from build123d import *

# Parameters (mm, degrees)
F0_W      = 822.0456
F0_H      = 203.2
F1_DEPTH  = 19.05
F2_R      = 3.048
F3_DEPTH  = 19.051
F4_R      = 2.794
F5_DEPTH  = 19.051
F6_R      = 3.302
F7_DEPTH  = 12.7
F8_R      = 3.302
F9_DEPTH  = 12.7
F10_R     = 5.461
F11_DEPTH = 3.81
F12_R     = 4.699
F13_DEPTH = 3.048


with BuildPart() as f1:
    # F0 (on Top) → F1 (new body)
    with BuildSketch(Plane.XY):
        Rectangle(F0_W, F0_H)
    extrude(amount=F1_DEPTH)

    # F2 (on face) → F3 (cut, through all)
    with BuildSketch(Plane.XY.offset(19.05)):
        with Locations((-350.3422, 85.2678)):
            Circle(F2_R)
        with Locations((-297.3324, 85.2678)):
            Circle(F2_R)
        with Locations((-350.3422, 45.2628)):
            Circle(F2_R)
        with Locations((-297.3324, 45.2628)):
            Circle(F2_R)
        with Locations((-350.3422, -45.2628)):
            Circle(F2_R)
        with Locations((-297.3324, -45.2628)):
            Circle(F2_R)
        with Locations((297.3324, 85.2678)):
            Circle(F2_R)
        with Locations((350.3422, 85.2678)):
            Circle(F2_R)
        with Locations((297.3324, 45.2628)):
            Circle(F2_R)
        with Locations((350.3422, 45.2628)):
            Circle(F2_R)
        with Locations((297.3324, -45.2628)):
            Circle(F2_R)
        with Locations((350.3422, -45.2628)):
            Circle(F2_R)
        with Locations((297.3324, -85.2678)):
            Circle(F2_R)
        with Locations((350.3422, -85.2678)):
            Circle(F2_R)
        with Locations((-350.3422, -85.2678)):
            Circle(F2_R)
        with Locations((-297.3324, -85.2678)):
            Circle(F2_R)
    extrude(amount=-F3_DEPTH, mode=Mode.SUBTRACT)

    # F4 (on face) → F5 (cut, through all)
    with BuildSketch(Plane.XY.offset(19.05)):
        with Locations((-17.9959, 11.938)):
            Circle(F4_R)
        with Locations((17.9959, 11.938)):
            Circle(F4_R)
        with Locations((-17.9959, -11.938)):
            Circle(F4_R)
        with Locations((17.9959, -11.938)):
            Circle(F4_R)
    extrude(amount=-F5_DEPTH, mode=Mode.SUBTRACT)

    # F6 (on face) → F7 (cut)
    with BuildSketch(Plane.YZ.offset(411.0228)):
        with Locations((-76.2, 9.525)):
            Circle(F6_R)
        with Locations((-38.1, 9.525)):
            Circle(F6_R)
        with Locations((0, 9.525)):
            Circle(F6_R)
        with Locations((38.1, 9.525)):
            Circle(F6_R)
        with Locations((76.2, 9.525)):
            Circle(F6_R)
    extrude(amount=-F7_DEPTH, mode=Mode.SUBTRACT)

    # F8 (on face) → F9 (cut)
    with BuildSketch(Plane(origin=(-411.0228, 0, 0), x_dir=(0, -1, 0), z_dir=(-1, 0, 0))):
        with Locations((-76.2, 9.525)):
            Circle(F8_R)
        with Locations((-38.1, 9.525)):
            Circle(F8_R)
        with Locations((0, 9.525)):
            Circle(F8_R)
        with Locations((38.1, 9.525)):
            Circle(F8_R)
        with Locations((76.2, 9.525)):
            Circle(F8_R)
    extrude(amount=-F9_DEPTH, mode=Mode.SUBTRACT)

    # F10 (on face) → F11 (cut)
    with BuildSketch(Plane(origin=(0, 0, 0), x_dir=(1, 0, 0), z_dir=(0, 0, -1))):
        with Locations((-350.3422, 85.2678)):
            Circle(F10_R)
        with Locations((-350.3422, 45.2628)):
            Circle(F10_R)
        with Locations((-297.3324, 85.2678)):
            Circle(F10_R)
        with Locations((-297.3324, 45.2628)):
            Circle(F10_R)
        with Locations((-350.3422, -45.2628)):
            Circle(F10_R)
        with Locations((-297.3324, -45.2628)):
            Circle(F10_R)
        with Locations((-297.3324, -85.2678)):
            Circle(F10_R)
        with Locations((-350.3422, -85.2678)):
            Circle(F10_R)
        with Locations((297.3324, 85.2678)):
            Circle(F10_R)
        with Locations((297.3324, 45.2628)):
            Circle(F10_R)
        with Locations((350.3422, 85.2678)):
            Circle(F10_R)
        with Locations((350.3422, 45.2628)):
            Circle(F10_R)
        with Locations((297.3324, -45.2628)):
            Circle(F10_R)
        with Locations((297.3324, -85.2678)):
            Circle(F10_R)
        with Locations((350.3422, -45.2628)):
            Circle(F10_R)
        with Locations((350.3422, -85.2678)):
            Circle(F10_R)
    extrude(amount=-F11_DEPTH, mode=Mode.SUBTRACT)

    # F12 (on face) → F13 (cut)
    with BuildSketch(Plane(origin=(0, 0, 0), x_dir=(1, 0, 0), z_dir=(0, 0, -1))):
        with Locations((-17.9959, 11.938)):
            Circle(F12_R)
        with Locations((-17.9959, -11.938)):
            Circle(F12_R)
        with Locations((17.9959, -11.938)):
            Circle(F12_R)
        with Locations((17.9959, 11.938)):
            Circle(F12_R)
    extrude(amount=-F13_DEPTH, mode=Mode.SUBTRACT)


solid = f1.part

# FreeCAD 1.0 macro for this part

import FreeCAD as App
import Part
import Sketcher

V = App.Vector
Q = App.Units.Quantity

doc = App.newDocument("Part")
params = doc.addObject("Spreadsheet::Sheet", "Params")
for row, (alias, value) in enumerate([
    ("sketch1_height", "8 in"),
    ("sketch1_width", "32.364 in"),
    ("pad1_length", "0.75 in"),
    ("sketch2_diameter", "0.24 in"),
    ("sketch3_diameter", "0.22 in"),
    ("sketch4_diameter", "0.26 in"),
    ("pocket3_length", "0.5 in"),
    ("sketch5_diameter", "0.26 in"),
    ("pocket4_length", "0.5 in"),
    ("sketch6_diameter", "0.43 in"),
    ("pocket5_length", "0.15 in"),
    ("sketch7_diameter", "0.37 in"),
    ("pocket6_length", "0.12 in"),
], start=1):
    params.set(f"A{row}", alias)
    params.set(f"B{row}", "=" + value)
    params.setAlias(f"B{row}", alias)

body = doc.addObject("PartDesign::Body", "Body")

# Sketch on XY plane
sketch1 = doc.addObject("Sketcher::SketchObject", "Sketch")
body.addObject(sketch1)
sketch1.AttachmentSupport = (doc.XY_Plane, [""])
sketch1.MapMode = "FlatFace"
sketch1.addGeometry([
    Part.LineSegment(V(-411.0228, 101.6, 0), V(-411.0228, -101.6, 0)),
    Part.LineSegment(V(-411.0228, -101.6, 0), V(411.0228, -101.6, 0)),
    Part.LineSegment(V(411.0228, -101.6, 0), V(411.0228, 101.6, 0)),
    Part.LineSegment(V(411.0228, 101.6, 0), V(-411.0228, 101.6, 0)),
], False)
sketch1.addConstraint([
    Sketcher.Constraint("Coincident", 0, 2, 1, 1),
    Sketcher.Constraint("Coincident", 1, 2, 2, 1),
    Sketcher.Constraint("Coincident", 2, 2, 3, 1),
    Sketcher.Constraint("Coincident", 3, 2, 0, 1),
    Sketcher.Constraint("Vertical", 0),
    Sketcher.Constraint("Horizontal", 1),
    Sketcher.Constraint("Vertical", 2),
    Sketcher.Constraint("Horizontal", 3),
    Sketcher.Constraint("Symmetric", 0, 2, 2, 2, -1, 1),
    Sketcher.Constraint("DistanceY", 0, 2, 0, 1, Q("8 in")),
    Sketcher.Constraint("DistanceX", 1, 1, 1, 2, Q("32.364 in")),
])
sketch1.setExpression("Constraints[9]", "Params.sketch1_height")
sketch1.setExpression("Constraints[10]", "Params.sketch1_width")
pad1 = doc.addObject("PartDesign::Pad", "Pad")
body.addObject(pad1)
pad1.Profile = sketch1
pad1.setExpression("Length", "Params.pad1_length")

# Sketch on XY plane
sketch2 = doc.addObject("Sketcher::SketchObject", "Sketch001")
body.addObject(sketch2)
sketch2.AttachmentSupport = (doc.XY_Plane, [""])
sketch2.MapMode = "FlatFace"
sketch2.AttachmentOffset = App.Placement(V(0, 0, 0.75 * 25.4), App.Rotation())
sketch2.addGeometry([
    Part.Circle(V(-350.3422, 85.2678, 0), V(0, 0, 1), 3.048),  # 0
    Part.Circle(V(-297.3324, 85.2678, 0), V(0, 0, 1), 3.048),  # 1
    Part.Circle(V(-350.3422, 45.2628, 0), V(0, 0, 1), 3.048),  # 2
    Part.Circle(V(-297.3324, 45.2628, 0), V(0, 0, 1), 3.048),  # 3
    Part.Circle(V(-350.3422, -45.2628, 0), V(0, 0, 1), 3.048),  # 4
    Part.Circle(V(-297.3324, -45.2628, 0), V(0, 0, 1), 3.048),  # 5
    Part.Circle(V(297.3324, 85.2678, 0), V(0, 0, 1), 3.048),  # 6
    Part.Circle(V(350.3422, 85.2678, 0), V(0, 0, 1), 3.048),  # 7
    Part.Circle(V(297.3324, 45.2628, 0), V(0, 0, 1), 3.048),  # 8
    Part.Circle(V(350.3422, 45.2628, 0), V(0, 0, 1), 3.048),  # 9
    Part.Circle(V(297.3324, -45.2628, 0), V(0, 0, 1), 3.048),  # 10
    Part.Circle(V(350.3422, -45.2628, 0), V(0, 0, 1), 3.048),  # 11
    Part.Circle(V(297.3324, -85.2678, 0), V(0, 0, 1), 3.048),  # 12
    Part.Circle(V(350.3422, -85.2678, 0), V(0, 0, 1), 3.048),  # 13
    Part.Circle(V(-350.3422, -85.2678, 0), V(0, 0, 1), 3.048),  # 14
    Part.Circle(V(-297.3324, -85.2678, 0), V(0, 0, 1), 3.048),  # 15
], False)
sketch2.addConstraint([
    Sketcher.Constraint("Equal", 0, 1),
    Sketcher.Constraint("Equal", 1, 2),
    Sketcher.Constraint("Equal", 2, 3),
    Sketcher.Constraint("Equal", 3, 4),
    Sketcher.Constraint("Equal", 4, 5),
    Sketcher.Constraint("Equal", 5, 6),
    Sketcher.Constraint("Equal", 6, 7),
    Sketcher.Constraint("Equal", 7, 8),
    Sketcher.Constraint("Equal", 8, 9),
    Sketcher.Constraint("Equal", 9, 10),
    Sketcher.Constraint("Equal", 10, 11),
    Sketcher.Constraint("Equal", 11, 12),
    Sketcher.Constraint("Equal", 12, 13),
    Sketcher.Constraint("Equal", 13, 14),
    Sketcher.Constraint("Equal", 14, 15),
    Sketcher.Constraint("Symmetric", 5, 3, 8, 3, -1, 1),
    Sketcher.Constraint("Symmetric", 4, 3, 9, 3, -1, 1),
    Sketcher.Constraint("Symmetric", 3, 3, 10, 3, -1, 1),
    Sketcher.Constraint("Symmetric", 2, 3, 11, 3, -1, 1),
    Sketcher.Constraint("Symmetric", 1, 3, 12, 3, -1, 1),
    Sketcher.Constraint("Symmetric", 0, 3, 13, 3, -1, 1),
    Sketcher.Constraint("Symmetric", 7, 3, 14, 3, -1, 1),
    Sketcher.Constraint("Symmetric", 6, 3, 15, 3, -1, 1),
    Sketcher.Constraint("Symmetric", 1, 3, 6, 3, -2),
    Sketcher.Constraint("Symmetric", 0, 3, 7, 3, -2),
    Sketcher.Constraint("Symmetric", 3, 3, 8, 3, -2),
    Sketcher.Constraint("Symmetric", 2, 3, 9, 3, -2),
    Sketcher.Constraint("Horizontal", 0, 3, 1, 3),
    Sketcher.Constraint("Horizontal", 2, 3, 3, 3),
    Sketcher.Constraint("Vertical", 0, 3, 2, 3),
    Sketcher.Constraint("Vertical", 1, 3, 3, 3),
    Sketcher.Constraint("Diameter", 0, Q("0.24 in")),
    Sketcher.Constraint("DistanceX", 0, 3, -1, 1, Q("13.793 in")),
    Sketcher.Constraint("DistanceY", -1, 1, 0, 3, Q("3.357 in")),
    Sketcher.Constraint("DistanceX", 1, 3, -1, 1, Q("11.706 in")),
    Sketcher.Constraint("DistanceY", -1, 1, 2, 3, Q("1.782 in")),
])
sketch2.setExpression("Constraints[31]", "Params.sketch2_diameter")
pocket1 = doc.addObject("PartDesign::Pocket", "Pocket")
body.addObject(pocket1)
pocket1.Profile = sketch2
pocket1.Type = "ThroughAll"

# Sketch on XY plane
sketch3 = doc.addObject("Sketcher::SketchObject", "Sketch002")
body.addObject(sketch3)
sketch3.AttachmentSupport = (doc.XY_Plane, [""])
sketch3.MapMode = "FlatFace"
sketch3.AttachmentOffset = App.Placement(V(0, 0, 0.75 * 25.4), App.Rotation())
sketch3.addGeometry([
    Part.Circle(V(-17.9959, 11.938, 0), V(0, 0, 1), 2.794),
    Part.Circle(V(17.9959, 11.938, 0), V(0, 0, 1), 2.794),
    Part.Circle(V(-17.9959, -11.938, 0), V(0, 0, 1), 2.794),
    Part.Circle(V(17.9959, -11.938, 0), V(0, 0, 1), 2.794),
], False)
sketch3.addConstraint([
    Sketcher.Constraint("Equal", 0, 1),
    Sketcher.Constraint("Equal", 1, 2),
    Sketcher.Constraint("Equal", 2, 3),
    Sketcher.Constraint("Symmetric", 1, 3, 2, 3, -1, 1),
    Sketcher.Constraint("Symmetric", 0, 3, 3, 3, -1, 1),
    Sketcher.Constraint("Symmetric", 0, 3, 1, 3, -2),
    Sketcher.Constraint("Diameter", 0, Q("0.22 in")),
    Sketcher.Constraint("DistanceY", -1, 1, 0, 3, Q("0.47 in")),
    Sketcher.Constraint("DistanceX", 0, 3, 1, 3, Q("1.417 in")),
])
sketch3.setExpression("Constraints[6]", "Params.sketch3_diameter")
pocket2 = doc.addObject("PartDesign::Pocket", "Pocket001")
body.addObject(pocket2)
pocket2.Profile = sketch3
pocket2.Type = "ThroughAll"

# Sketch on YZ plane
sketch4 = doc.addObject("Sketcher::SketchObject", "Sketch003")
body.addObject(sketch4)
sketch4.AttachmentSupport = (doc.YZ_Plane, [""])
sketch4.MapMode = "FlatFace"
sketch4.AttachmentOffset = App.Placement(V(0, 0, 16.182 * 25.4), App.Rotation())
sketch4.addGeometry([
    Part.Circle(V(-76.2, 9.525, 0), V(0, 0, 1), 3.302),  # 0
    Part.Circle(V(-38.1, 9.525, 0), V(0, 0, 1), 3.302),  # 1
    Part.Circle(V(0, 9.525, 0), V(0, 0, 1), 3.302),  # 2
    Part.Circle(V(38.1, 9.525, 0), V(0, 0, 1), 3.302),  # 3
    Part.Circle(V(76.2, 9.525, 0), V(0, 0, 1), 3.302),  # 4
], False)
sketch4.addConstraint([
    Sketcher.Constraint("Equal", 0, 1),
    Sketcher.Constraint("Equal", 1, 2),
    Sketcher.Constraint("Equal", 2, 3),
    Sketcher.Constraint("Equal", 3, 4),
    Sketcher.Constraint("Symmetric", 1, 3, 3, 3, -2),
    Sketcher.Constraint("Symmetric", 0, 3, 4, 3, -2),
    Sketcher.Constraint("PointOnObject", 2, 3, -2),
    Sketcher.Constraint("Horizontal", 0, 3, 1, 3),
    Sketcher.Constraint("Horizontal", 1, 3, 2, 3),
    Sketcher.Constraint("Diameter", 0, Q("0.26 in")),
    Sketcher.Constraint("DistanceX", 0, 3, -1, 1, Q("3 in")),
    Sketcher.Constraint("DistanceX", 1, 3, 3, 3, Q("3 in")),
    Sketcher.Constraint("DistanceY", -1, 1, 0, 3, Q("0.375 in")),
])
sketch4.setExpression("Constraints[9]", "Params.sketch4_diameter")
pocket3 = doc.addObject("PartDesign::Pocket", "Pocket002")
body.addObject(pocket3)
pocket3.Profile = sketch4
pocket3.setExpression("Length", "Params.pocket3_length")

# Sketch on YZ plane
sketch5 = doc.addObject("Sketcher::SketchObject", "Sketch004")
body.addObject(sketch5)
sketch5.AttachmentSupport = (doc.YZ_Plane, [""])
sketch5.MapMode = "FlatFace"
sketch5.AttachmentOffset = App.Placement(V(0, 0, -16.182 * 25.4), App.Rotation())
sketch5.addGeometry([
    Part.Circle(V(76.2, 9.525, 0), V(0, 0, 1), 3.302),  # 0
    Part.Circle(V(38.1, 9.525, 0), V(0, 0, 1), 3.302),  # 1
    Part.Circle(V(0, 9.525, 0), V(0, 0, 1), 3.302),  # 2
    Part.Circle(V(-38.1, 9.525, 0), V(0, 0, 1), 3.302),  # 3
    Part.Circle(V(-76.2, 9.525, 0), V(0, 0, 1), 3.302),  # 4
], False)
sketch5.addConstraint([
    Sketcher.Constraint("Equal", 0, 1),
    Sketcher.Constraint("Equal", 1, 2),
    Sketcher.Constraint("Equal", 2, 3),
    Sketcher.Constraint("Equal", 3, 4),
    Sketcher.Constraint("Symmetric", 1, 3, 3, 3, -2),
    Sketcher.Constraint("Symmetric", 0, 3, 4, 3, -2),
    Sketcher.Constraint("PointOnObject", 2, 3, -2),
    Sketcher.Constraint("Horizontal", 0, 3, 1, 3),
    Sketcher.Constraint("Horizontal", 1, 3, 2, 3),
    Sketcher.Constraint("Diameter", 0, Q("0.26 in")),
    Sketcher.Constraint("DistanceX", -1, 1, 0, 3, Q("3 in")),
    Sketcher.Constraint("DistanceX", 3, 3, 1, 3, Q("3 in")),
    Sketcher.Constraint("DistanceY", -1, 1, 0, 3, Q("0.375 in")),
])
sketch5.setExpression("Constraints[9]", "Params.sketch5_diameter")
pocket4 = doc.addObject("PartDesign::Pocket", "Pocket003")
body.addObject(pocket4)
pocket4.Profile = sketch5
pocket4.setExpression("Length", "Params.pocket4_length")
pocket4.Reversed = True

# Sketch on XY plane
sketch6 = doc.addObject("Sketcher::SketchObject", "Sketch005")
body.addObject(sketch6)
sketch6.AttachmentSupport = (doc.XY_Plane, [""])
sketch6.MapMode = "FlatFace"
sketch6.addGeometry([
    Part.Circle(V(-350.3422, -85.2678, 0), V(0, 0, 1), 5.461),  # 0
    Part.Circle(V(-350.3422, -45.2628, 0), V(0, 0, 1), 5.461),  # 1
    Part.Circle(V(-297.3324, -85.2678, 0), V(0, 0, 1), 5.461),  # 2
    Part.Circle(V(-297.3324, -45.2628, 0), V(0, 0, 1), 5.461),  # 3
    Part.Circle(V(-350.3422, 45.2628, 0), V(0, 0, 1), 5.461),  # 4
    Part.Circle(V(-297.3324, 45.2628, 0), V(0, 0, 1), 5.461),  # 5
    Part.Circle(V(-297.3324, 85.2678, 0), V(0, 0, 1), 5.461),  # 6
    Part.Circle(V(-350.3422, 85.2678, 0), V(0, 0, 1), 5.461),  # 7
    Part.Circle(V(297.3324, -85.2678, 0), V(0, 0, 1), 5.461),  # 8
    Part.Circle(V(297.3324, -45.2628, 0), V(0, 0, 1), 5.461),  # 9
    Part.Circle(V(350.3422, -85.2678, 0), V(0, 0, 1), 5.461),  # 10
    Part.Circle(V(350.3422, -45.2628, 0), V(0, 0, 1), 5.461),  # 11
    Part.Circle(V(297.3324, 45.2628, 0), V(0, 0, 1), 5.461),  # 12
    Part.Circle(V(297.3324, 85.2678, 0), V(0, 0, 1), 5.461),  # 13
    Part.Circle(V(350.3422, 45.2628, 0), V(0, 0, 1), 5.461),  # 14
    Part.Circle(V(350.3422, 85.2678, 0), V(0, 0, 1), 5.461),  # 15
], False)
sketch6.addConstraint([
    Sketcher.Constraint("Equal", 0, 1),
    Sketcher.Constraint("Equal", 1, 2),
    Sketcher.Constraint("Equal", 2, 3),
    Sketcher.Constraint("Equal", 3, 4),
    Sketcher.Constraint("Equal", 4, 5),
    Sketcher.Constraint("Equal", 5, 6),
    Sketcher.Constraint("Equal", 6, 7),
    Sketcher.Constraint("Equal", 7, 8),
    Sketcher.Constraint("Equal", 8, 9),
    Sketcher.Constraint("Equal", 9, 10),
    Sketcher.Constraint("Equal", 10, 11),
    Sketcher.Constraint("Equal", 11, 12),
    Sketcher.Constraint("Equal", 12, 13),
    Sketcher.Constraint("Equal", 13, 14),
    Sketcher.Constraint("Equal", 14, 15),
    Sketcher.Constraint("Symmetric", 6, 3, 8, 3, -1, 1),
    Sketcher.Constraint("Symmetric", 5, 3, 9, 3, -1, 1),
    Sketcher.Constraint("Symmetric", 7, 3, 10, 3, -1, 1),
    Sketcher.Constraint("Symmetric", 4, 3, 11, 3, -1, 1),
    Sketcher.Constraint("Symmetric", 3, 3, 12, 3, -1, 1),
    Sketcher.Constraint("Symmetric", 2, 3, 13, 3, -1, 1),
    Sketcher.Constraint("Symmetric", 1, 3, 14, 3, -1, 1),
    Sketcher.Constraint("Symmetric", 0, 3, 15, 3, -1, 1),
    Sketcher.Constraint("Symmetric", 2, 3, 8, 3, -2),
    Sketcher.Constraint("Symmetric", 3, 3, 9, 3, -2),
    Sketcher.Constraint("Symmetric", 0, 3, 10, 3, -2),
    Sketcher.Constraint("Symmetric", 1, 3, 11, 3, -2),
    Sketcher.Constraint("Horizontal", 0, 3, 2, 3),
    Sketcher.Constraint("Horizontal", 1, 3, 3, 3),
    Sketcher.Constraint("Vertical", 0, 3, 1, 3),
    Sketcher.Constraint("Vertical", 2, 3, 3, 3),
    Sketcher.Constraint("Diameter", 0, Q("0.43 in")),
    Sketcher.Constraint("DistanceX", 0, 3, -1, 1, Q("13.793 in")),
    Sketcher.Constraint("DistanceY", 0, 3, -1, 1, Q("3.357 in")),
    Sketcher.Constraint("DistanceY", 1, 3, -1, 1, Q("1.782 in")),
    Sketcher.Constraint("DistanceX", 2, 3, -1, 1, Q("11.706 in")),
])
sketch6.setExpression("Constraints[31]", "Params.sketch6_diameter")
pocket5 = doc.addObject("PartDesign::Pocket", "Pocket004")
body.addObject(pocket5)
pocket5.Profile = sketch6
pocket5.setExpression("Length", "Params.pocket5_length")
pocket5.Reversed = True

# Sketch on XY plane
sketch7 = doc.addObject("Sketcher::SketchObject", "Sketch006")
body.addObject(sketch7)
sketch7.AttachmentSupport = (doc.XY_Plane, [""])
sketch7.MapMode = "FlatFace"
sketch7.addGeometry([
    Part.Circle(V(-17.9959, -11.938, 0), V(0, 0, 1), 4.699),
    Part.Circle(V(-17.9959, 11.938, 0), V(0, 0, 1), 4.699),
    Part.Circle(V(17.9959, 11.938, 0), V(0, 0, 1), 4.699),
    Part.Circle(V(17.9959, -11.938, 0), V(0, 0, 1), 4.699),
], False)
sketch7.addConstraint([
    Sketcher.Constraint("Equal", 0, 1),
    Sketcher.Constraint("Equal", 1, 2),
    Sketcher.Constraint("Equal", 2, 3),
    Sketcher.Constraint("Symmetric", 0, 3, 2, 3, -1, 1),
    Sketcher.Constraint("Symmetric", 1, 3, 3, 3, -1, 1),
    Sketcher.Constraint("Symmetric", 1, 3, 2, 3, -2),
    Sketcher.Constraint("Diameter", 0, Q("0.37 in")),
    Sketcher.Constraint("DistanceY", 0, 3, -1, 1, Q("0.47 in")),
    Sketcher.Constraint("DistanceX", 1, 3, 2, 3, Q("1.417 in")),
])
sketch7.setExpression("Constraints[6]", "Params.sketch7_diameter")
pocket6 = doc.addObject("PartDesign::Pocket", "Pocket005")
body.addObject(pocket6)
pocket6.Profile = sketch7
pocket6.setExpression("Length", "Params.pocket6_length")
pocket6.Reversed = True

doc.recompute()
